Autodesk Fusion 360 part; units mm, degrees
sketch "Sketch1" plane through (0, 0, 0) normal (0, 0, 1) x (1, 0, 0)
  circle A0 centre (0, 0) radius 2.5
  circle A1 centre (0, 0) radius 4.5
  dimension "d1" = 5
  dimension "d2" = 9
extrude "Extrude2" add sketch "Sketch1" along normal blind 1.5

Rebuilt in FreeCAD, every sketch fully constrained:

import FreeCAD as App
import Part
import Sketcher

doc = App.newDocument("Part")
body = doc.addObject("PartDesign::Body", "Body")

sketch1 = body.newObject("Sketcher::SketchObject", "Sketch")
sketch1.AttachmentSupport = (doc.getObject("XY_Plane"), [""])
sketch1.MapMode = "FlatFace"
sketch1.addGeometry([
    Part.Circle(App.Vector(0, 0, 0), App.Vector(0, 0, 1), 4.5),
    Part.Circle(App.Vector(0, 0, 0), App.Vector(0, 0, 1), 2.5),
], False)
sketch1.addConstraint([
    Sketcher.Constraint("Coincident", 0, 3, -1, 1),
    Sketcher.Constraint("Coincident", 1, 3, -1, 1),
    Sketcher.Constraint("Diameter", 0, 9.0),
    Sketcher.Constraint("Diameter", 1, 5.0),
])
pad1 = body.newObject("PartDesign::Pad", "Pad")
pad1.Profile = sketch1
pad1.Length = 1.5

doc.recompute()
